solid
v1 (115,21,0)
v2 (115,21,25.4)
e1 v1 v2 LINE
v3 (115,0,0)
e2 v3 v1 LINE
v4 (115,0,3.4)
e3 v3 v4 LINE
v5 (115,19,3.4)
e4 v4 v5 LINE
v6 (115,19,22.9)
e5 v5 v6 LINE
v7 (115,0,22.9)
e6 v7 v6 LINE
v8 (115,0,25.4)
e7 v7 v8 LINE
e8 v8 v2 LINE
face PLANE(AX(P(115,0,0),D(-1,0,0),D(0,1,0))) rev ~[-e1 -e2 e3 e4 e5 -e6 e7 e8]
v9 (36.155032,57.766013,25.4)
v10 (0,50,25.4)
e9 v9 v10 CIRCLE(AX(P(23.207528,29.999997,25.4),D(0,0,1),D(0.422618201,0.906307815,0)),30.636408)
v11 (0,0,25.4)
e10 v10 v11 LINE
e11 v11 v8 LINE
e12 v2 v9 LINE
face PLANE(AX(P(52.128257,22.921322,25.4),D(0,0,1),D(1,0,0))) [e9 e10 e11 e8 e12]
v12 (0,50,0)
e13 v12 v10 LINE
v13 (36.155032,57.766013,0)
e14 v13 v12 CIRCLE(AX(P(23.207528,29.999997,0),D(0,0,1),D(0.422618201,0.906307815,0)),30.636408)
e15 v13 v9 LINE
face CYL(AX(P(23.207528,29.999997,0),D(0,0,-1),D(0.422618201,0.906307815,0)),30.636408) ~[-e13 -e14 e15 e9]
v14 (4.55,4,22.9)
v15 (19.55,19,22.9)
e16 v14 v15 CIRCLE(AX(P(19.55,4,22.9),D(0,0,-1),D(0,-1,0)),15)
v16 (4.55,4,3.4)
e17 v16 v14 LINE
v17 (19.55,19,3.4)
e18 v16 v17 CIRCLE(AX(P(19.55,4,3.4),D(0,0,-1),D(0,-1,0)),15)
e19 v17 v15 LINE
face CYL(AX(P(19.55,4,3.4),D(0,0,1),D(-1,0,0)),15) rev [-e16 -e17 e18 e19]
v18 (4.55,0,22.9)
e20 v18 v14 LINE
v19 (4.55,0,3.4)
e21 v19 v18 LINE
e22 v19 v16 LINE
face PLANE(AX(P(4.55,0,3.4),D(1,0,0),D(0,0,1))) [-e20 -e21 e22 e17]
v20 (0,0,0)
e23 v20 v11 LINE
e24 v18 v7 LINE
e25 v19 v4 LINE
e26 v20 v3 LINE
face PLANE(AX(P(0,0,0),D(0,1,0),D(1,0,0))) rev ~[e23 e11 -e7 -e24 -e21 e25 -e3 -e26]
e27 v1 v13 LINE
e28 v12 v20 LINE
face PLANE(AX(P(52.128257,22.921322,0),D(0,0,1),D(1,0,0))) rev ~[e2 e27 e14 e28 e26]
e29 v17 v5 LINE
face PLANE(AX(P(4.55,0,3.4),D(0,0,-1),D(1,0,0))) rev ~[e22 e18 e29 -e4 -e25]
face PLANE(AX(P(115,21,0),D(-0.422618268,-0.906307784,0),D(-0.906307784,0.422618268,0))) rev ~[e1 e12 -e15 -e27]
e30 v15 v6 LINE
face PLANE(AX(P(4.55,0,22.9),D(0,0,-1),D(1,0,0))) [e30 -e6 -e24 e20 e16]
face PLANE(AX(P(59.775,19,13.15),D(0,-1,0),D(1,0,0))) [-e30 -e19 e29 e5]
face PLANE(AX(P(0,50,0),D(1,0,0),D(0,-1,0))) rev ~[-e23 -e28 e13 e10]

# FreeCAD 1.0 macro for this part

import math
import FreeCAD as App
import Part
import Sketcher
Q = App.Units.Quantity


def edges_at(feature, points):
    """Names of the edges that pass closest to the given points."""
    edges = feature.Shape.Edges
    near = lambda p: min(range(len(edges)), key=lambda i: edges[i].distToShape(Part.Vertex(*p))[0])
    return sorted({f"Edge{near(p) + 1}" for p in points})

doc = App.newDocument("Part")
body = doc.addObject("PartDesign::Body", "Body")

sketch1 = body.newObject("Sketcher::SketchObject", "Sketch")
sketch1.AttachmentSupport = (doc.getObject("XY_Plane"), [""])
sketch1.MapMode = "FlatFace"
sketch1.addGeometry([
    Part.LineSegment(App.Vector(0, 50, 0), App.Vector(0, 0, 0)),
    Part.LineSegment(App.Vector(0, 0, 0), App.Vector(115, 0, 0)),
    Part.LineSegment(App.Vector(115, 0, 0), App.Vector(115, 21, 0)),
    Part.LineSegment(App.Vector(115, 21, 0), App.Vector(36, 58, 0)),
    Part.ArcOfCircle(Part.Circle(App.Vector(23, 30, 0), App.Vector(0, 0, 1), 31), math.radians(65), math.radians(139)),
], False)
sketch1.addConstraint([
    Sketcher.Constraint("Coincident", 0, 2, 1, 1),
    Sketcher.Constraint("Coincident", 1, 2, 2, 1),
    Sketcher.Constraint("Coincident", 2, 2, 3, 1),
    Sketcher.Constraint("Tangent", 3, 2, 4, 1),
    Sketcher.Constraint("Coincident", 4, 2, 0, 1),
    Sketcher.Constraint("Vertical", 0),
    Sketcher.Constraint("Horizontal", 1),
    Sketcher.Constraint("Vertical", 2),
    Sketcher.Constraint("Coincident", 0, 2, -1, 1),
    Sketcher.Constraint("DistanceX", 1, 1, 1, 2, Q("115 mm")),
    Sketcher.Constraint("DistanceY", 0, 2, 0, 1, Q("50 mm")),
    Sketcher.Constraint("DistanceY", 2, 1, 2, 2, Q("21 mm")),
    Sketcher.Constraint("Angle", 3, Q("155 deg")),
    Sketcher.Constraint("Radius", 4, Q("30.636408 mm")),
])
pad1 = body.newObject("PartDesign::Pad", "Pad")
pad1.Profile = sketch1
pad1.Length = 25.4

sketch2 = body.newObject("Sketcher::SketchObject", "Sketch001")
sketch2.AttachmentSupport = (doc.getObject("XZ_Plane"), [""])
sketch2.MapMode = "FlatFace"
sketch2.addGeometry([
    Part.LineSegment(App.Vector(5, 23, 0), App.Vector(5, 3, 0)),
    Part.LineSegment(App.Vector(5, 3, 0), App.Vector(115, 3, 0)),
    Part.LineSegment(App.Vector(115, 3, 0), App.Vector(115, 23, 0)),
    Part.LineSegment(App.Vector(115, 23, 0), App.Vector(5, 23, 0)),
], False)
sketch2.addConstraint([
    Sketcher.Constraint("Coincident", 0, 2, 1, 1),
    Sketcher.Constraint("Coincident", 1, 2, 2, 1),
    Sketcher.Constraint("Coincident", 2, 2, 3, 1),
    Sketcher.Constraint("Coincident", 3, 2, 0, 1),
    Sketcher.Constraint("Vertical", 0),
    Sketcher.Constraint("Horizontal", 1),
    Sketcher.Constraint("Vertical", 2),
    Sketcher.Constraint("Horizontal", 3),
    Sketcher.Constraint("DistanceY", 0, 2, 0, 1, Q("19.5 mm")),
    Sketcher.Constraint("DistanceX", -1, 1, 1, 2, Q("115 mm")),
    Sketcher.Constraint("DistanceX", 1, 1, 1, 2, Q("110.45 mm")),
    Sketcher.Constraint("DistanceY", -1, 1, 0, 2, Q("3.4 mm")),
])
pocket1 = body.newObject("PartDesign::Pocket", "Pocket")
pocket1.Profile = sketch2
pocket1.Length = 19
doc.recompute()

fillet = body.newObject("PartDesign::Fillet", "Fillet")
fillet.Base = (pocket1, edges_at(pocket1, [(4.55, 19, 13.15)]))
fillet.Radius = 15

doc.recompute()
